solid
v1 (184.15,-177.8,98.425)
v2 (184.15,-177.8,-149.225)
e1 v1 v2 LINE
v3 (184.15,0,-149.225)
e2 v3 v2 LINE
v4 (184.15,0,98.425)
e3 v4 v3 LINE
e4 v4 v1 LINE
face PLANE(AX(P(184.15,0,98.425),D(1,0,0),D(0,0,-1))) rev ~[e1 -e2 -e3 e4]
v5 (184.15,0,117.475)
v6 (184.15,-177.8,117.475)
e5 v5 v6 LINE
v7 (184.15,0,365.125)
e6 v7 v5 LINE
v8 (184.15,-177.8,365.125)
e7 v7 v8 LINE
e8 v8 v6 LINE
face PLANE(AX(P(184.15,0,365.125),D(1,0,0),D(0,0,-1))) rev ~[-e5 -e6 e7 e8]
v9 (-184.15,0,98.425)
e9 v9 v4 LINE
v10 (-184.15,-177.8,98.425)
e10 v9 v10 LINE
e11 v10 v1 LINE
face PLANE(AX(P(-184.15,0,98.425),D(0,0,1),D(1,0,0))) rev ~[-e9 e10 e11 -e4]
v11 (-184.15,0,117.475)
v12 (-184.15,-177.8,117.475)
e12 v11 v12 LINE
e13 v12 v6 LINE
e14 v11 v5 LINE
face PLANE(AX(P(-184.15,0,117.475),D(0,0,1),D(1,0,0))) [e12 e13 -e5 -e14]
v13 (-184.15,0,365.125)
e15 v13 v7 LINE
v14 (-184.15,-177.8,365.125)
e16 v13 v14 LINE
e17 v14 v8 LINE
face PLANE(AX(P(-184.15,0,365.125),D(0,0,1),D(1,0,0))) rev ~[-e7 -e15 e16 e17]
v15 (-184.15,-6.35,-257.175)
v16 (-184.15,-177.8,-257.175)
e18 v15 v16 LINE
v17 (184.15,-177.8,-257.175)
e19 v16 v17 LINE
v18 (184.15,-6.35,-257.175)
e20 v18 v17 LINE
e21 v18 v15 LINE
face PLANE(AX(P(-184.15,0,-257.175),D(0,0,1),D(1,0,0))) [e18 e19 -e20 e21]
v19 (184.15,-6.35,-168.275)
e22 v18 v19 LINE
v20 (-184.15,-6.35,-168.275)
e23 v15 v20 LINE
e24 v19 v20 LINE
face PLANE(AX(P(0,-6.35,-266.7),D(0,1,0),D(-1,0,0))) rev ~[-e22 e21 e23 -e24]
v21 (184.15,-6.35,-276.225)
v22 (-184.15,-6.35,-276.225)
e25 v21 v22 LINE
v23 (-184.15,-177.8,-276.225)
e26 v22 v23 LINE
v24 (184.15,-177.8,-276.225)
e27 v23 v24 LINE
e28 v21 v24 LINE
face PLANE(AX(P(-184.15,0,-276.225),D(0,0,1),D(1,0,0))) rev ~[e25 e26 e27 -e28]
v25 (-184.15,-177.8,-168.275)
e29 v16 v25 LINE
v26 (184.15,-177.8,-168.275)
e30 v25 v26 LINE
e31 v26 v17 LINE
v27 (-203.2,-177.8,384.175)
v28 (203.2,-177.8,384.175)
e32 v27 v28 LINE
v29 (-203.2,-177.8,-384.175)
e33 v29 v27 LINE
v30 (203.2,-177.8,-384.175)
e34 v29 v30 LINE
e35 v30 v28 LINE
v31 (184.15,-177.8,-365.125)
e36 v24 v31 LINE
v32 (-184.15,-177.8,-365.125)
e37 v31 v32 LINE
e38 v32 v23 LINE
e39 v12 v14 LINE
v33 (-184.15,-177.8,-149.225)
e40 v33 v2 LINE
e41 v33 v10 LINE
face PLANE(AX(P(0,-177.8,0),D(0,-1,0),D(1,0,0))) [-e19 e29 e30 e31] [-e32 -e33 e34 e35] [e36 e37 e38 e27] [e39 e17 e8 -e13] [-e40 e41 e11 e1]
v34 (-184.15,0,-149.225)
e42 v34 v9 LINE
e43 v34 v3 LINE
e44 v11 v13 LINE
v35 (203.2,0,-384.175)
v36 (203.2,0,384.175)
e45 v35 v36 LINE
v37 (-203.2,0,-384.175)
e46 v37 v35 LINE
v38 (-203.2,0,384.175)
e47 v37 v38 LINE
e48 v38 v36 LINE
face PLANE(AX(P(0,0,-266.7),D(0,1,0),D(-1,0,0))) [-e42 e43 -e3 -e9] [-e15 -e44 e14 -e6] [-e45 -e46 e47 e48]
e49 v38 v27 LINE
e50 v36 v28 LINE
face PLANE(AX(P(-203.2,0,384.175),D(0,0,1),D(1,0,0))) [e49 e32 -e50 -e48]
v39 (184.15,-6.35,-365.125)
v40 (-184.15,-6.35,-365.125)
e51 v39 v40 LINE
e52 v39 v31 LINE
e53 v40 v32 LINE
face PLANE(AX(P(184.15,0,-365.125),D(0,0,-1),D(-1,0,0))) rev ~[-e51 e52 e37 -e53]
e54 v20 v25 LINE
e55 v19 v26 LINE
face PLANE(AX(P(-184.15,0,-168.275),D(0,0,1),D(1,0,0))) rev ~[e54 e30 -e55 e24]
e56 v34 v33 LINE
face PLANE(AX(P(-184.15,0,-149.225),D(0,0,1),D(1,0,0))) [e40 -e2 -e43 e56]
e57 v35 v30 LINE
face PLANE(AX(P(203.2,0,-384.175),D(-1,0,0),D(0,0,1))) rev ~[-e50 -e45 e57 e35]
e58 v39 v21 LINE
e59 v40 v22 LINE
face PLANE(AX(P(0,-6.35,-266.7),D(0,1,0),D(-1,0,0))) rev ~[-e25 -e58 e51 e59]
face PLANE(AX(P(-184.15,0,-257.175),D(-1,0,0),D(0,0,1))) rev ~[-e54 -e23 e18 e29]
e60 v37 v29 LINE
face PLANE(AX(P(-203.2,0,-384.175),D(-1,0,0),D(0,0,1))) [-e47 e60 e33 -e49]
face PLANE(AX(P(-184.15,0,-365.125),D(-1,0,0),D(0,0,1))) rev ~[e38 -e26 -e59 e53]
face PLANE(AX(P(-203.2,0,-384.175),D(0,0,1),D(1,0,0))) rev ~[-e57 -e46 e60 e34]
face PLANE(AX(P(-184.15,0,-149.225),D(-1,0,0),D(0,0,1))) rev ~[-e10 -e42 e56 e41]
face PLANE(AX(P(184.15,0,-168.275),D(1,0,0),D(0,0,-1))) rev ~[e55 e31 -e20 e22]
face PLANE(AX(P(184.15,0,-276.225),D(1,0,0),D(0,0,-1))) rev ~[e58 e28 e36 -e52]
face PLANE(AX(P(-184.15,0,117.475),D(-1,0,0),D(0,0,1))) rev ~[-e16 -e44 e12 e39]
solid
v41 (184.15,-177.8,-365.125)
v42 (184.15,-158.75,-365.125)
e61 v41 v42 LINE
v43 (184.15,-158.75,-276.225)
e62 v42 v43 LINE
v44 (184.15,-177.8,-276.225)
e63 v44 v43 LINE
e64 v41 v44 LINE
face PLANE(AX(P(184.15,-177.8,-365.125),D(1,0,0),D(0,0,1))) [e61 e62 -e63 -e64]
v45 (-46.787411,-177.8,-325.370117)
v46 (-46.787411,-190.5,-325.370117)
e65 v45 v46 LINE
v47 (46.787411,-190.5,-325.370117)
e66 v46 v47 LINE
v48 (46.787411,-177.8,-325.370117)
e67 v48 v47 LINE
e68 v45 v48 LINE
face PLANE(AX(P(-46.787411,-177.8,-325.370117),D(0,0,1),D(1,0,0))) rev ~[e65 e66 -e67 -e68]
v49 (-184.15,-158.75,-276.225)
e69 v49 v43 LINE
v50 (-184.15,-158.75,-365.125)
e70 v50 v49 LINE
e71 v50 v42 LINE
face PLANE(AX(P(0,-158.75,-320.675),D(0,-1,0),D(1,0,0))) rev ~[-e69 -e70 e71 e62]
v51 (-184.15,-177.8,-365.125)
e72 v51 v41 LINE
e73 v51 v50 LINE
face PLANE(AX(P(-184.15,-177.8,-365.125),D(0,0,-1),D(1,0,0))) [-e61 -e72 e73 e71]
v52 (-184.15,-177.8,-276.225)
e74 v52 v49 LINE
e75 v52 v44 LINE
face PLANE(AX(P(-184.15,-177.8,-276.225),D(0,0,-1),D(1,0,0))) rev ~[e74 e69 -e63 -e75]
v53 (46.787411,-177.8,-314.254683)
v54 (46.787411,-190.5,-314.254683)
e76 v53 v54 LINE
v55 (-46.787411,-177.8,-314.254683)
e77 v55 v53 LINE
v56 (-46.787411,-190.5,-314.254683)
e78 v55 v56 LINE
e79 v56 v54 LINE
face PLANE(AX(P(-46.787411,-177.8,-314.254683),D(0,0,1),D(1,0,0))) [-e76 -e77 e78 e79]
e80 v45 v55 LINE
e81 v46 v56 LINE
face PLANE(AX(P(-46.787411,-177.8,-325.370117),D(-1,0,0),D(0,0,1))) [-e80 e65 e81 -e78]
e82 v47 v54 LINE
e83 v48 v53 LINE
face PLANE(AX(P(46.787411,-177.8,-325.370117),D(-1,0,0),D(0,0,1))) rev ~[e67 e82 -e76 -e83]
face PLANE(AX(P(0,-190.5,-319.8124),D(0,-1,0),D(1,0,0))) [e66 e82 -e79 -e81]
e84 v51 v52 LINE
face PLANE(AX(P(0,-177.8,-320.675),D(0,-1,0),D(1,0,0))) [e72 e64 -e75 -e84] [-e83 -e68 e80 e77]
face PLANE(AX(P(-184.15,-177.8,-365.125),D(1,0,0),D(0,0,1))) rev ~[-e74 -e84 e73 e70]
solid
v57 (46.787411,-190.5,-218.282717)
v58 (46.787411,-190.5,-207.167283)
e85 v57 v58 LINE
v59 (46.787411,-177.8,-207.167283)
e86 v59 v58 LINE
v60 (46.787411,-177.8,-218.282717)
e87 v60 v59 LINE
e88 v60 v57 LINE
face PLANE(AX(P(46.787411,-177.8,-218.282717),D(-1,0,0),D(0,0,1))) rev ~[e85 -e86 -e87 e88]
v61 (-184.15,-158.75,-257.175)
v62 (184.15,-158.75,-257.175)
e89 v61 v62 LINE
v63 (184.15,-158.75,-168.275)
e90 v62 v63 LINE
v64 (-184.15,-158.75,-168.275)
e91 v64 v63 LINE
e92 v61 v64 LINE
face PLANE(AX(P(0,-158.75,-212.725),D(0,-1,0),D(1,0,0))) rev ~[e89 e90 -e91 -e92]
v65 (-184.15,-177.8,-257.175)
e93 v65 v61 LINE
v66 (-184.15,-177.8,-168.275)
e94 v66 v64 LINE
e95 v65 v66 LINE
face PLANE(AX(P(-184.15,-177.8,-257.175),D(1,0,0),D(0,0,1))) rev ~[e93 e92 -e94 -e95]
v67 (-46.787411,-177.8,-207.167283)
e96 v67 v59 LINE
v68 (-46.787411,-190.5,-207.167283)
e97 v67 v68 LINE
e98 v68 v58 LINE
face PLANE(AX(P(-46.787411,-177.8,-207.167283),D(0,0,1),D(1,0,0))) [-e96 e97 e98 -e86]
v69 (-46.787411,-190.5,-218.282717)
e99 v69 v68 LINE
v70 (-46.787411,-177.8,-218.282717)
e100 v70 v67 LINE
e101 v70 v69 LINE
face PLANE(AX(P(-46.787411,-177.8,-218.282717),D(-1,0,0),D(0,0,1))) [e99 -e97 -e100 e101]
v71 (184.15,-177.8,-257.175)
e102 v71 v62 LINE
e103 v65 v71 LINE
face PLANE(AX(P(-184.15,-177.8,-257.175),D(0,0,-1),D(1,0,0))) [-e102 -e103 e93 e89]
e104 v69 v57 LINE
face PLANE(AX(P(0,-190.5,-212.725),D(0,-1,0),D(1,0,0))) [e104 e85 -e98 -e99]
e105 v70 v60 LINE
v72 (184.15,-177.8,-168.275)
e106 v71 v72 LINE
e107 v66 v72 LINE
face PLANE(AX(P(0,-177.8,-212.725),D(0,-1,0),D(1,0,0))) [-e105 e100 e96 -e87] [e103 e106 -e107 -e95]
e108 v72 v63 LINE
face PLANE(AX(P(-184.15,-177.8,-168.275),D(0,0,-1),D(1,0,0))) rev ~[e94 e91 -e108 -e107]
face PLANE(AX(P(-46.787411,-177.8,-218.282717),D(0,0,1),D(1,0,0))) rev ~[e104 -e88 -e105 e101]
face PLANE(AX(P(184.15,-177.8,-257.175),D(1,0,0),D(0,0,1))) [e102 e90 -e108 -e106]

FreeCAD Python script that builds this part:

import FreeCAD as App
import Part
import Sketcher
from FreeCAD import Vector
Q = App.Units.Quantity

doc = App.newDocument("Part")
body = doc.addObject("PartDesign::Body", "Body")

# Sketch on XZ plane
sketch1 = doc.addObject("Sketcher::SketchObject", "Sketch")
body.addObject(sketch1)
sketch1.AttachmentSupport = (doc.XZ_Plane, [""])
sketch1.MapMode = "FlatFace"
sketch1.addGeometry([
    Part.LineSegment(Vector(-203, 384, 0), Vector(-203, -384, 0)),  # 0
    Part.LineSegment(Vector(-203, -384, 0), Vector(203, -384, 0)),  # 1
    Part.LineSegment(Vector(203, -384, 0), Vector(203, 384, 0)),  # 2
    Part.LineSegment(Vector(203, 384, 0), Vector(-203, 384, 0)),  # 3
    Part.LineSegment(Vector(-184, -365, 0), Vector(-184, -276, 0)),  # 4
    Part.LineSegment(Vector(-184, -276, 0), Vector(184, -276, 0)),  # 5
    Part.LineSegment(Vector(184, -276, 0), Vector(184, -365, 0)),  # 6
    Part.LineSegment(Vector(184, -365, 0), Vector(-184, -365, 0)),  # 7
    Part.LineSegment(Vector(-184, -257, 0), Vector(-184, -168, 0)),  # 8
    Part.LineSegment(Vector(-184, -168, 0), Vector(184, -168, 0)),  # 9
    Part.LineSegment(Vector(184, -168, 0), Vector(184, -257, 0)),  # 10
    Part.LineSegment(Vector(184, -257, 0), Vector(-184, -257, 0)),  # 11
    Part.LineSegment(Vector(-184, -149, 0), Vector(-184, 98, 0)),  # 12
    Part.LineSegment(Vector(-184, 98, 0), Vector(184, 98, 0)),  # 13
    Part.LineSegment(Vector(184, 98, 0), Vector(184, -149, 0)),  # 14
    Part.LineSegment(Vector(184, -149, 0), Vector(-184, -149, 0)),  # 15
    Part.LineSegment(Vector(-184, 117, 0), Vector(-184, 365, 0)),  # 16
    Part.LineSegment(Vector(-184, 365, 0), Vector(184, 365, 0)),  # 17
    Part.LineSegment(Vector(184, 365, 0), Vector(184, 117, 0)),  # 18
    Part.LineSegment(Vector(184, 117, 0), Vector(-184, 117, 0)),  # 19
], False)
sketch1.addConstraint([
    Sketcher.Constraint("Coincident", 0, 2, 1, 1),
    Sketcher.Constraint("Coincident", 1, 2, 2, 1),
    Sketcher.Constraint("Coincident", 2, 2, 3, 1),
    Sketcher.Constraint("Coincident", 3, 2, 0, 1),
    Sketcher.Constraint("Coincident", 4, 2, 5, 1),
    Sketcher.Constraint("Coincident", 5, 2, 6, 1),
    Sketcher.Constraint("Coincident", 6, 2, 7, 1),
    Sketcher.Constraint("Coincident", 7, 2, 4, 1),
    Sketcher.Constraint("Coincident", 8, 2, 9, 1),
    Sketcher.Constraint("Coincident", 9, 2, 10, 1),
    Sketcher.Constraint("Coincident", 10, 2, 11, 1),
    Sketcher.Constraint("Coincident", 11, 2, 8, 1),
    Sketcher.Constraint("Coincident", 12, 2, 13, 1),
    Sketcher.Constraint("Coincident", 13, 2, 14, 1),
    Sketcher.Constraint("Coincident", 14, 2, 15, 1),
    Sketcher.Constraint("Coincident", 15, 2, 12, 1),
    Sketcher.Constraint("Coincident", 16, 2, 17, 1),
    Sketcher.Constraint("Coincident", 17, 2, 18, 1),
    Sketcher.Constraint("Coincident", 18, 2, 19, 1),
    Sketcher.Constraint("Coincident", 19, 2, 16, 1),
    Sketcher.Constraint("Vertical", 0),
    Sketcher.Constraint("Horizontal", 1),
    Sketcher.Constraint("Vertical", 2),
    Sketcher.Constraint("Horizontal", 3),
    Sketcher.Constraint("Vertical", 4),
    Sketcher.Constraint("Horizontal", 5),
    Sketcher.Constraint("Vertical", 6),
    Sketcher.Constraint("Horizontal", 7),
    Sketcher.Constraint("Vertical", 8),
    Sketcher.Constraint("Horizontal", 9),
    Sketcher.Constraint("Vertical", 10),
    Sketcher.Constraint("Horizontal", 11),
    Sketcher.Constraint("Vertical", 12),
    Sketcher.Constraint("Horizontal", 13),
    Sketcher.Constraint("Vertical", 14),
    Sketcher.Constraint("Horizontal", 15),
    Sketcher.Constraint("Vertical", 16),
    Sketcher.Constraint("Horizontal", 17),
    Sketcher.Constraint("Vertical", 18),
    Sketcher.Constraint("Horizontal", 19),
    Sketcher.Constraint("Symmetric", 0, 2, 2, 2, -1, 1),
    Sketcher.Constraint("Symmetric", 6, 2, 16, 2, -1, 1),
    Sketcher.Constraint("Vertical", 7, 2, 8, 2),
    Sketcher.Constraint("Vertical", 6, 2, 9, 2),
    Sketcher.Constraint("Vertical", 11, 2, 12, 2),
    Sketcher.Constraint("Vertical", 10, 2, 13, 2),
    Sketcher.Constraint("Vertical", 15, 2, 16, 2),
    Sketcher.Constraint("Vertical", 14, 2, 17, 2),
    Sketcher.Constraint("Equal", 6, 8),
    Sketcher.Constraint("Equal", 14, 16),
    Sketcher.Constraint("DistanceX", 1, 1, 1, 2, Q("16 in")),
    Sketcher.Constraint("DistanceX", 5, 1, 5, 2, Q("14.5 in")),
    Sketcher.Constraint("DistanceY", 4, 1, 4, 2, Q("3.5 in")),
    Sketcher.Constraint("DistanceY", 4, 2, 3, 2, Q("26 in")),
    Sketcher.Constraint("DistanceY", 1, 2, 10, 2, Q("5 in")),
    Sketcher.Constraint("DistanceY", 11, 2, 12, 2, Q("14 in")),
    Sketcher.Constraint("DistanceY", 5, 2, 14, 2, Q("5 in")),
    Sketcher.Constraint("DistanceY", 0, 2, 0, 1, Q("30.25 in")),
])
pad1 = doc.addObject("PartDesign::Pad", "Pad")
body.addObject(pad1)
pad1.Profile = sketch1
pad1.Length = Q("7 in")

# Sketch on XZ plane
sketch2 = doc.addObject("Sketcher::SketchObject", "Sketch001")
body.addObject(sketch2)
sketch2.AttachmentSupport = (doc.XZ_Plane, [""])
sketch2.MapMode = "FlatFace"
sketch2.addGeometry([
    Part.LineSegment(Vector(184, -168, 0), Vector(184, -365, 0)),
    Part.LineSegment(Vector(184, -365, 0), Vector(-184, -365, 0)),
    Part.LineSegment(Vector(-184, -365, 0), Vector(-184, -168, 0)),
    Part.LineSegment(Vector(-184, -168, 0), Vector(184, -168, 0)),
], False)
sketch2.addConstraint([
    Sketcher.Constraint("Coincident", 0, 2, 1, 1),
    Sketcher.Constraint("Coincident", 1, 2, 2, 1),
    Sketcher.Constraint("Coincident", 2, 2, 3, 1),
    Sketcher.Constraint("Coincident", 3, 2, 0, 1),
    Sketcher.Constraint("Vertical", 0),
    Sketcher.Constraint("Horizontal", 1),
    Sketcher.Constraint("Vertical", 2),
    Sketcher.Constraint("Horizontal", 3),
    Sketcher.Constraint("DistanceX", 1, 2, 1, 1, Q("14.5 in")),
    Sketcher.Constraint("DistanceY", 0, 2, 0, 1, Q("7.75 in")),
    Sketcher.Constraint("DistanceX", -1, 1, 0, 2, Q("7.25 in")),
    Sketcher.Constraint("DistanceY", 0, 2, -1, 1, Q("14.375 in")),
])
pad2 = doc.addObject("PartDesign::Pad", "Pad001")
body.addObject(pad2)
pad2.Profile = sketch2
pad2.Length = Q("0.25 in")
body2 = doc.addObject("PartDesign::Body", "Body001")
body2.AllowCompound = True

# Sketch on XZ plane
sketch3 = doc.addObject("Sketcher::SketchObject", "Sketch002")
body2.addObject(sketch3)
sketch3.AttachmentSupport = (doc.getObject("XZ_Plane001"), [""])
sketch3.MapMode = "FlatFace"
sketch3.AttachmentOffset = App.Placement(Vector(0, 0, 7 * 25.4), App.Rotation())
sketch3.addGeometry([
    Part.LineSegment(Vector(-184, -168, 0), Vector(-184, -257, 0)),  # 0
    Part.LineSegment(Vector(-184, -257, 0), Vector(184, -257, 0)),  # 1
    Part.LineSegment(Vector(184, -257, 0), Vector(184, -168, 0)),  # 2
    Part.LineSegment(Vector(184, -168, 0), Vector(-184, -168, 0)),  # 3
    Part.LineSegment(Vector(-184, -276, 0), Vector(-184, -365, 0)),  # 4
    Part.LineSegment(Vector(-184, -365, 0), Vector(184, -365, 0)),  # 5
    Part.LineSegment(Vector(184, -365, 0), Vector(184, -276, 0)),  # 6
    Part.LineSegment(Vector(184, -276, 0), Vector(-184, -276, 0)),  # 7
], False)
sketch3.addConstraint([
    Sketcher.Constraint("Coincident", 0, 2, 1, 1),
    Sketcher.Constraint("Coincident", 1, 2, 2, 1),
    Sketcher.Constraint("Coincident", 2, 2, 3, 1),
    Sketcher.Constraint("Coincident", 3, 2, 0, 1),
    Sketcher.Constraint("Coincident", 4, 2, 5, 1),
    Sketcher.Constraint("Coincident", 5, 2, 6, 1),
    Sketcher.Constraint("Coincident", 6, 2, 7, 1),
    Sketcher.Constraint("Coincident", 7, 2, 4, 1),
    Sketcher.Constraint("Vertical", 0),
    Sketcher.Constraint("Horizontal", 1),
    Sketcher.Constraint("Vertical", 2),
    Sketcher.Constraint("Horizontal", 3),
    Sketcher.Constraint("Vertical", 4),
    Sketcher.Constraint("Horizontal", 5),
    Sketcher.Constraint("Vertical", 6),
    Sketcher.Constraint("Horizontal", 7),
    Sketcher.Constraint("Vertical", 3, 2, 4, 2),
    Sketcher.Constraint("Vertical", 2, 2, 5, 2),
    Sketcher.Constraint("Equal", 2, 4),
    Sketcher.Constraint("DistanceX", 1, 1, 1, 2, Q("14.5 in")),
    Sketcher.Constraint("DistanceY", 0, 2, 0, 1, Q("3.5 in")),
    Sketcher.Constraint("DistanceX", 0, 2, -1, 1, Q("7.25 in")),
    Sketcher.Constraint("DistanceY", 4, 2, 0, 2, Q("4.25 in")),
    Sketcher.Constraint("DistanceY", 0, 2, -1, 1, Q("10.125 in")),
])
pad3 = doc.addObject("PartDesign::Pad", "Pad002")
body2.addObject(pad3)
pad3.Profile = sketch3
pad3.Length = Q("0.75 in")
pad3.Reversed = True

# Sketch on XZ plane
sketch4 = doc.addObject("Sketcher::SketchObject", "Sketch003")
body2.addObject(sketch4)
sketch4.AttachmentSupport = (doc.getObject("XZ_Plane001"), [""])
sketch4.MapMode = "FlatFace"
sketch4.AttachmentOffset = App.Placement(Vector(0, 0, 7 * 25.4), App.Rotation())
sketch4.addGeometry([
    Part.LineSegment(Vector(-47, -207, 0), Vector(-47, -218, 0)),  # 0
    Part.LineSegment(Vector(-47, -218, 0), Vector(47, -218, 0)),  # 1
    Part.LineSegment(Vector(47, -218, 0), Vector(47, -207, 0)),  # 2
    Part.LineSegment(Vector(47, -207, 0), Vector(-47, -207, 0)),  # 3
    Part.LineSegment(Vector(-47, -314, 0), Vector(-47, -325, 0)),  # 4
    Part.LineSegment(Vector(-47, -325, 0), Vector(47, -325, 0)),  # 5
    Part.LineSegment(Vector(47, -325, 0), Vector(47, -314, 0)),  # 6
    Part.LineSegment(Vector(47, -314, 0), Vector(-47, -314, 0)),  # 7
], False)
sketch4.addConstraint([
    Sketcher.Constraint("Coincident", 0, 2, 1, 1),
    Sketcher.Constraint("Coincident", 1, 2, 2, 1),
    Sketcher.Constraint("Coincident", 2, 2, 3, 1),
    Sketcher.Constraint("Coincident", 3, 2, 0, 1),
    Sketcher.Constraint("Coincident", 4, 2, 5, 1),
    Sketcher.Constraint("Coincident", 5, 2, 6, 1),
    Sketcher.Constraint("Coincident", 6, 2, 7, 1),
    Sketcher.Constraint("Coincident", 7, 2, 4, 1),
    Sketcher.Constraint("Vertical", 0),
    Sketcher.Constraint("Horizontal", 1),
    Sketcher.Constraint("Vertical", 2),
    Sketcher.Constraint("Horizontal", 3),
    Sketcher.Constraint("Vertical", 4),
    Sketcher.Constraint("Horizontal", 5),
    Sketcher.Constraint("Vertical", 6),
    Sketcher.Constraint("Horizontal", 7),
    Sketcher.Constraint("Vertical", 3, 2, 4, 2),
    Sketcher.Constraint("Vertical", 2, 2, 5, 2),
    Sketcher.Constraint("Equal", 2, 4),
    Sketcher.Constraint("DistanceX", 1, 1, 1, 2, 93.574822),
    Sketcher.Constraint("DistanceY", 4, 2, 0, 2, 107.087401),
    Sketcher.Constraint("DistanceY", 0, 2, 0, 1, 11.115434),
    Sketcher.Constraint("DistanceX", 0, 2, -1, 1, 46.787411),
    Sketcher.Constraint("DistanceY", 0, 2, -1, 1, 218.282717),
])
pad4 = doc.addObject("PartDesign::Pad", "Pad003")
body2.addObject(pad4)
pad4.Profile = sketch4
pad4.Length = Q("0.5 in")

doc.recompute()
